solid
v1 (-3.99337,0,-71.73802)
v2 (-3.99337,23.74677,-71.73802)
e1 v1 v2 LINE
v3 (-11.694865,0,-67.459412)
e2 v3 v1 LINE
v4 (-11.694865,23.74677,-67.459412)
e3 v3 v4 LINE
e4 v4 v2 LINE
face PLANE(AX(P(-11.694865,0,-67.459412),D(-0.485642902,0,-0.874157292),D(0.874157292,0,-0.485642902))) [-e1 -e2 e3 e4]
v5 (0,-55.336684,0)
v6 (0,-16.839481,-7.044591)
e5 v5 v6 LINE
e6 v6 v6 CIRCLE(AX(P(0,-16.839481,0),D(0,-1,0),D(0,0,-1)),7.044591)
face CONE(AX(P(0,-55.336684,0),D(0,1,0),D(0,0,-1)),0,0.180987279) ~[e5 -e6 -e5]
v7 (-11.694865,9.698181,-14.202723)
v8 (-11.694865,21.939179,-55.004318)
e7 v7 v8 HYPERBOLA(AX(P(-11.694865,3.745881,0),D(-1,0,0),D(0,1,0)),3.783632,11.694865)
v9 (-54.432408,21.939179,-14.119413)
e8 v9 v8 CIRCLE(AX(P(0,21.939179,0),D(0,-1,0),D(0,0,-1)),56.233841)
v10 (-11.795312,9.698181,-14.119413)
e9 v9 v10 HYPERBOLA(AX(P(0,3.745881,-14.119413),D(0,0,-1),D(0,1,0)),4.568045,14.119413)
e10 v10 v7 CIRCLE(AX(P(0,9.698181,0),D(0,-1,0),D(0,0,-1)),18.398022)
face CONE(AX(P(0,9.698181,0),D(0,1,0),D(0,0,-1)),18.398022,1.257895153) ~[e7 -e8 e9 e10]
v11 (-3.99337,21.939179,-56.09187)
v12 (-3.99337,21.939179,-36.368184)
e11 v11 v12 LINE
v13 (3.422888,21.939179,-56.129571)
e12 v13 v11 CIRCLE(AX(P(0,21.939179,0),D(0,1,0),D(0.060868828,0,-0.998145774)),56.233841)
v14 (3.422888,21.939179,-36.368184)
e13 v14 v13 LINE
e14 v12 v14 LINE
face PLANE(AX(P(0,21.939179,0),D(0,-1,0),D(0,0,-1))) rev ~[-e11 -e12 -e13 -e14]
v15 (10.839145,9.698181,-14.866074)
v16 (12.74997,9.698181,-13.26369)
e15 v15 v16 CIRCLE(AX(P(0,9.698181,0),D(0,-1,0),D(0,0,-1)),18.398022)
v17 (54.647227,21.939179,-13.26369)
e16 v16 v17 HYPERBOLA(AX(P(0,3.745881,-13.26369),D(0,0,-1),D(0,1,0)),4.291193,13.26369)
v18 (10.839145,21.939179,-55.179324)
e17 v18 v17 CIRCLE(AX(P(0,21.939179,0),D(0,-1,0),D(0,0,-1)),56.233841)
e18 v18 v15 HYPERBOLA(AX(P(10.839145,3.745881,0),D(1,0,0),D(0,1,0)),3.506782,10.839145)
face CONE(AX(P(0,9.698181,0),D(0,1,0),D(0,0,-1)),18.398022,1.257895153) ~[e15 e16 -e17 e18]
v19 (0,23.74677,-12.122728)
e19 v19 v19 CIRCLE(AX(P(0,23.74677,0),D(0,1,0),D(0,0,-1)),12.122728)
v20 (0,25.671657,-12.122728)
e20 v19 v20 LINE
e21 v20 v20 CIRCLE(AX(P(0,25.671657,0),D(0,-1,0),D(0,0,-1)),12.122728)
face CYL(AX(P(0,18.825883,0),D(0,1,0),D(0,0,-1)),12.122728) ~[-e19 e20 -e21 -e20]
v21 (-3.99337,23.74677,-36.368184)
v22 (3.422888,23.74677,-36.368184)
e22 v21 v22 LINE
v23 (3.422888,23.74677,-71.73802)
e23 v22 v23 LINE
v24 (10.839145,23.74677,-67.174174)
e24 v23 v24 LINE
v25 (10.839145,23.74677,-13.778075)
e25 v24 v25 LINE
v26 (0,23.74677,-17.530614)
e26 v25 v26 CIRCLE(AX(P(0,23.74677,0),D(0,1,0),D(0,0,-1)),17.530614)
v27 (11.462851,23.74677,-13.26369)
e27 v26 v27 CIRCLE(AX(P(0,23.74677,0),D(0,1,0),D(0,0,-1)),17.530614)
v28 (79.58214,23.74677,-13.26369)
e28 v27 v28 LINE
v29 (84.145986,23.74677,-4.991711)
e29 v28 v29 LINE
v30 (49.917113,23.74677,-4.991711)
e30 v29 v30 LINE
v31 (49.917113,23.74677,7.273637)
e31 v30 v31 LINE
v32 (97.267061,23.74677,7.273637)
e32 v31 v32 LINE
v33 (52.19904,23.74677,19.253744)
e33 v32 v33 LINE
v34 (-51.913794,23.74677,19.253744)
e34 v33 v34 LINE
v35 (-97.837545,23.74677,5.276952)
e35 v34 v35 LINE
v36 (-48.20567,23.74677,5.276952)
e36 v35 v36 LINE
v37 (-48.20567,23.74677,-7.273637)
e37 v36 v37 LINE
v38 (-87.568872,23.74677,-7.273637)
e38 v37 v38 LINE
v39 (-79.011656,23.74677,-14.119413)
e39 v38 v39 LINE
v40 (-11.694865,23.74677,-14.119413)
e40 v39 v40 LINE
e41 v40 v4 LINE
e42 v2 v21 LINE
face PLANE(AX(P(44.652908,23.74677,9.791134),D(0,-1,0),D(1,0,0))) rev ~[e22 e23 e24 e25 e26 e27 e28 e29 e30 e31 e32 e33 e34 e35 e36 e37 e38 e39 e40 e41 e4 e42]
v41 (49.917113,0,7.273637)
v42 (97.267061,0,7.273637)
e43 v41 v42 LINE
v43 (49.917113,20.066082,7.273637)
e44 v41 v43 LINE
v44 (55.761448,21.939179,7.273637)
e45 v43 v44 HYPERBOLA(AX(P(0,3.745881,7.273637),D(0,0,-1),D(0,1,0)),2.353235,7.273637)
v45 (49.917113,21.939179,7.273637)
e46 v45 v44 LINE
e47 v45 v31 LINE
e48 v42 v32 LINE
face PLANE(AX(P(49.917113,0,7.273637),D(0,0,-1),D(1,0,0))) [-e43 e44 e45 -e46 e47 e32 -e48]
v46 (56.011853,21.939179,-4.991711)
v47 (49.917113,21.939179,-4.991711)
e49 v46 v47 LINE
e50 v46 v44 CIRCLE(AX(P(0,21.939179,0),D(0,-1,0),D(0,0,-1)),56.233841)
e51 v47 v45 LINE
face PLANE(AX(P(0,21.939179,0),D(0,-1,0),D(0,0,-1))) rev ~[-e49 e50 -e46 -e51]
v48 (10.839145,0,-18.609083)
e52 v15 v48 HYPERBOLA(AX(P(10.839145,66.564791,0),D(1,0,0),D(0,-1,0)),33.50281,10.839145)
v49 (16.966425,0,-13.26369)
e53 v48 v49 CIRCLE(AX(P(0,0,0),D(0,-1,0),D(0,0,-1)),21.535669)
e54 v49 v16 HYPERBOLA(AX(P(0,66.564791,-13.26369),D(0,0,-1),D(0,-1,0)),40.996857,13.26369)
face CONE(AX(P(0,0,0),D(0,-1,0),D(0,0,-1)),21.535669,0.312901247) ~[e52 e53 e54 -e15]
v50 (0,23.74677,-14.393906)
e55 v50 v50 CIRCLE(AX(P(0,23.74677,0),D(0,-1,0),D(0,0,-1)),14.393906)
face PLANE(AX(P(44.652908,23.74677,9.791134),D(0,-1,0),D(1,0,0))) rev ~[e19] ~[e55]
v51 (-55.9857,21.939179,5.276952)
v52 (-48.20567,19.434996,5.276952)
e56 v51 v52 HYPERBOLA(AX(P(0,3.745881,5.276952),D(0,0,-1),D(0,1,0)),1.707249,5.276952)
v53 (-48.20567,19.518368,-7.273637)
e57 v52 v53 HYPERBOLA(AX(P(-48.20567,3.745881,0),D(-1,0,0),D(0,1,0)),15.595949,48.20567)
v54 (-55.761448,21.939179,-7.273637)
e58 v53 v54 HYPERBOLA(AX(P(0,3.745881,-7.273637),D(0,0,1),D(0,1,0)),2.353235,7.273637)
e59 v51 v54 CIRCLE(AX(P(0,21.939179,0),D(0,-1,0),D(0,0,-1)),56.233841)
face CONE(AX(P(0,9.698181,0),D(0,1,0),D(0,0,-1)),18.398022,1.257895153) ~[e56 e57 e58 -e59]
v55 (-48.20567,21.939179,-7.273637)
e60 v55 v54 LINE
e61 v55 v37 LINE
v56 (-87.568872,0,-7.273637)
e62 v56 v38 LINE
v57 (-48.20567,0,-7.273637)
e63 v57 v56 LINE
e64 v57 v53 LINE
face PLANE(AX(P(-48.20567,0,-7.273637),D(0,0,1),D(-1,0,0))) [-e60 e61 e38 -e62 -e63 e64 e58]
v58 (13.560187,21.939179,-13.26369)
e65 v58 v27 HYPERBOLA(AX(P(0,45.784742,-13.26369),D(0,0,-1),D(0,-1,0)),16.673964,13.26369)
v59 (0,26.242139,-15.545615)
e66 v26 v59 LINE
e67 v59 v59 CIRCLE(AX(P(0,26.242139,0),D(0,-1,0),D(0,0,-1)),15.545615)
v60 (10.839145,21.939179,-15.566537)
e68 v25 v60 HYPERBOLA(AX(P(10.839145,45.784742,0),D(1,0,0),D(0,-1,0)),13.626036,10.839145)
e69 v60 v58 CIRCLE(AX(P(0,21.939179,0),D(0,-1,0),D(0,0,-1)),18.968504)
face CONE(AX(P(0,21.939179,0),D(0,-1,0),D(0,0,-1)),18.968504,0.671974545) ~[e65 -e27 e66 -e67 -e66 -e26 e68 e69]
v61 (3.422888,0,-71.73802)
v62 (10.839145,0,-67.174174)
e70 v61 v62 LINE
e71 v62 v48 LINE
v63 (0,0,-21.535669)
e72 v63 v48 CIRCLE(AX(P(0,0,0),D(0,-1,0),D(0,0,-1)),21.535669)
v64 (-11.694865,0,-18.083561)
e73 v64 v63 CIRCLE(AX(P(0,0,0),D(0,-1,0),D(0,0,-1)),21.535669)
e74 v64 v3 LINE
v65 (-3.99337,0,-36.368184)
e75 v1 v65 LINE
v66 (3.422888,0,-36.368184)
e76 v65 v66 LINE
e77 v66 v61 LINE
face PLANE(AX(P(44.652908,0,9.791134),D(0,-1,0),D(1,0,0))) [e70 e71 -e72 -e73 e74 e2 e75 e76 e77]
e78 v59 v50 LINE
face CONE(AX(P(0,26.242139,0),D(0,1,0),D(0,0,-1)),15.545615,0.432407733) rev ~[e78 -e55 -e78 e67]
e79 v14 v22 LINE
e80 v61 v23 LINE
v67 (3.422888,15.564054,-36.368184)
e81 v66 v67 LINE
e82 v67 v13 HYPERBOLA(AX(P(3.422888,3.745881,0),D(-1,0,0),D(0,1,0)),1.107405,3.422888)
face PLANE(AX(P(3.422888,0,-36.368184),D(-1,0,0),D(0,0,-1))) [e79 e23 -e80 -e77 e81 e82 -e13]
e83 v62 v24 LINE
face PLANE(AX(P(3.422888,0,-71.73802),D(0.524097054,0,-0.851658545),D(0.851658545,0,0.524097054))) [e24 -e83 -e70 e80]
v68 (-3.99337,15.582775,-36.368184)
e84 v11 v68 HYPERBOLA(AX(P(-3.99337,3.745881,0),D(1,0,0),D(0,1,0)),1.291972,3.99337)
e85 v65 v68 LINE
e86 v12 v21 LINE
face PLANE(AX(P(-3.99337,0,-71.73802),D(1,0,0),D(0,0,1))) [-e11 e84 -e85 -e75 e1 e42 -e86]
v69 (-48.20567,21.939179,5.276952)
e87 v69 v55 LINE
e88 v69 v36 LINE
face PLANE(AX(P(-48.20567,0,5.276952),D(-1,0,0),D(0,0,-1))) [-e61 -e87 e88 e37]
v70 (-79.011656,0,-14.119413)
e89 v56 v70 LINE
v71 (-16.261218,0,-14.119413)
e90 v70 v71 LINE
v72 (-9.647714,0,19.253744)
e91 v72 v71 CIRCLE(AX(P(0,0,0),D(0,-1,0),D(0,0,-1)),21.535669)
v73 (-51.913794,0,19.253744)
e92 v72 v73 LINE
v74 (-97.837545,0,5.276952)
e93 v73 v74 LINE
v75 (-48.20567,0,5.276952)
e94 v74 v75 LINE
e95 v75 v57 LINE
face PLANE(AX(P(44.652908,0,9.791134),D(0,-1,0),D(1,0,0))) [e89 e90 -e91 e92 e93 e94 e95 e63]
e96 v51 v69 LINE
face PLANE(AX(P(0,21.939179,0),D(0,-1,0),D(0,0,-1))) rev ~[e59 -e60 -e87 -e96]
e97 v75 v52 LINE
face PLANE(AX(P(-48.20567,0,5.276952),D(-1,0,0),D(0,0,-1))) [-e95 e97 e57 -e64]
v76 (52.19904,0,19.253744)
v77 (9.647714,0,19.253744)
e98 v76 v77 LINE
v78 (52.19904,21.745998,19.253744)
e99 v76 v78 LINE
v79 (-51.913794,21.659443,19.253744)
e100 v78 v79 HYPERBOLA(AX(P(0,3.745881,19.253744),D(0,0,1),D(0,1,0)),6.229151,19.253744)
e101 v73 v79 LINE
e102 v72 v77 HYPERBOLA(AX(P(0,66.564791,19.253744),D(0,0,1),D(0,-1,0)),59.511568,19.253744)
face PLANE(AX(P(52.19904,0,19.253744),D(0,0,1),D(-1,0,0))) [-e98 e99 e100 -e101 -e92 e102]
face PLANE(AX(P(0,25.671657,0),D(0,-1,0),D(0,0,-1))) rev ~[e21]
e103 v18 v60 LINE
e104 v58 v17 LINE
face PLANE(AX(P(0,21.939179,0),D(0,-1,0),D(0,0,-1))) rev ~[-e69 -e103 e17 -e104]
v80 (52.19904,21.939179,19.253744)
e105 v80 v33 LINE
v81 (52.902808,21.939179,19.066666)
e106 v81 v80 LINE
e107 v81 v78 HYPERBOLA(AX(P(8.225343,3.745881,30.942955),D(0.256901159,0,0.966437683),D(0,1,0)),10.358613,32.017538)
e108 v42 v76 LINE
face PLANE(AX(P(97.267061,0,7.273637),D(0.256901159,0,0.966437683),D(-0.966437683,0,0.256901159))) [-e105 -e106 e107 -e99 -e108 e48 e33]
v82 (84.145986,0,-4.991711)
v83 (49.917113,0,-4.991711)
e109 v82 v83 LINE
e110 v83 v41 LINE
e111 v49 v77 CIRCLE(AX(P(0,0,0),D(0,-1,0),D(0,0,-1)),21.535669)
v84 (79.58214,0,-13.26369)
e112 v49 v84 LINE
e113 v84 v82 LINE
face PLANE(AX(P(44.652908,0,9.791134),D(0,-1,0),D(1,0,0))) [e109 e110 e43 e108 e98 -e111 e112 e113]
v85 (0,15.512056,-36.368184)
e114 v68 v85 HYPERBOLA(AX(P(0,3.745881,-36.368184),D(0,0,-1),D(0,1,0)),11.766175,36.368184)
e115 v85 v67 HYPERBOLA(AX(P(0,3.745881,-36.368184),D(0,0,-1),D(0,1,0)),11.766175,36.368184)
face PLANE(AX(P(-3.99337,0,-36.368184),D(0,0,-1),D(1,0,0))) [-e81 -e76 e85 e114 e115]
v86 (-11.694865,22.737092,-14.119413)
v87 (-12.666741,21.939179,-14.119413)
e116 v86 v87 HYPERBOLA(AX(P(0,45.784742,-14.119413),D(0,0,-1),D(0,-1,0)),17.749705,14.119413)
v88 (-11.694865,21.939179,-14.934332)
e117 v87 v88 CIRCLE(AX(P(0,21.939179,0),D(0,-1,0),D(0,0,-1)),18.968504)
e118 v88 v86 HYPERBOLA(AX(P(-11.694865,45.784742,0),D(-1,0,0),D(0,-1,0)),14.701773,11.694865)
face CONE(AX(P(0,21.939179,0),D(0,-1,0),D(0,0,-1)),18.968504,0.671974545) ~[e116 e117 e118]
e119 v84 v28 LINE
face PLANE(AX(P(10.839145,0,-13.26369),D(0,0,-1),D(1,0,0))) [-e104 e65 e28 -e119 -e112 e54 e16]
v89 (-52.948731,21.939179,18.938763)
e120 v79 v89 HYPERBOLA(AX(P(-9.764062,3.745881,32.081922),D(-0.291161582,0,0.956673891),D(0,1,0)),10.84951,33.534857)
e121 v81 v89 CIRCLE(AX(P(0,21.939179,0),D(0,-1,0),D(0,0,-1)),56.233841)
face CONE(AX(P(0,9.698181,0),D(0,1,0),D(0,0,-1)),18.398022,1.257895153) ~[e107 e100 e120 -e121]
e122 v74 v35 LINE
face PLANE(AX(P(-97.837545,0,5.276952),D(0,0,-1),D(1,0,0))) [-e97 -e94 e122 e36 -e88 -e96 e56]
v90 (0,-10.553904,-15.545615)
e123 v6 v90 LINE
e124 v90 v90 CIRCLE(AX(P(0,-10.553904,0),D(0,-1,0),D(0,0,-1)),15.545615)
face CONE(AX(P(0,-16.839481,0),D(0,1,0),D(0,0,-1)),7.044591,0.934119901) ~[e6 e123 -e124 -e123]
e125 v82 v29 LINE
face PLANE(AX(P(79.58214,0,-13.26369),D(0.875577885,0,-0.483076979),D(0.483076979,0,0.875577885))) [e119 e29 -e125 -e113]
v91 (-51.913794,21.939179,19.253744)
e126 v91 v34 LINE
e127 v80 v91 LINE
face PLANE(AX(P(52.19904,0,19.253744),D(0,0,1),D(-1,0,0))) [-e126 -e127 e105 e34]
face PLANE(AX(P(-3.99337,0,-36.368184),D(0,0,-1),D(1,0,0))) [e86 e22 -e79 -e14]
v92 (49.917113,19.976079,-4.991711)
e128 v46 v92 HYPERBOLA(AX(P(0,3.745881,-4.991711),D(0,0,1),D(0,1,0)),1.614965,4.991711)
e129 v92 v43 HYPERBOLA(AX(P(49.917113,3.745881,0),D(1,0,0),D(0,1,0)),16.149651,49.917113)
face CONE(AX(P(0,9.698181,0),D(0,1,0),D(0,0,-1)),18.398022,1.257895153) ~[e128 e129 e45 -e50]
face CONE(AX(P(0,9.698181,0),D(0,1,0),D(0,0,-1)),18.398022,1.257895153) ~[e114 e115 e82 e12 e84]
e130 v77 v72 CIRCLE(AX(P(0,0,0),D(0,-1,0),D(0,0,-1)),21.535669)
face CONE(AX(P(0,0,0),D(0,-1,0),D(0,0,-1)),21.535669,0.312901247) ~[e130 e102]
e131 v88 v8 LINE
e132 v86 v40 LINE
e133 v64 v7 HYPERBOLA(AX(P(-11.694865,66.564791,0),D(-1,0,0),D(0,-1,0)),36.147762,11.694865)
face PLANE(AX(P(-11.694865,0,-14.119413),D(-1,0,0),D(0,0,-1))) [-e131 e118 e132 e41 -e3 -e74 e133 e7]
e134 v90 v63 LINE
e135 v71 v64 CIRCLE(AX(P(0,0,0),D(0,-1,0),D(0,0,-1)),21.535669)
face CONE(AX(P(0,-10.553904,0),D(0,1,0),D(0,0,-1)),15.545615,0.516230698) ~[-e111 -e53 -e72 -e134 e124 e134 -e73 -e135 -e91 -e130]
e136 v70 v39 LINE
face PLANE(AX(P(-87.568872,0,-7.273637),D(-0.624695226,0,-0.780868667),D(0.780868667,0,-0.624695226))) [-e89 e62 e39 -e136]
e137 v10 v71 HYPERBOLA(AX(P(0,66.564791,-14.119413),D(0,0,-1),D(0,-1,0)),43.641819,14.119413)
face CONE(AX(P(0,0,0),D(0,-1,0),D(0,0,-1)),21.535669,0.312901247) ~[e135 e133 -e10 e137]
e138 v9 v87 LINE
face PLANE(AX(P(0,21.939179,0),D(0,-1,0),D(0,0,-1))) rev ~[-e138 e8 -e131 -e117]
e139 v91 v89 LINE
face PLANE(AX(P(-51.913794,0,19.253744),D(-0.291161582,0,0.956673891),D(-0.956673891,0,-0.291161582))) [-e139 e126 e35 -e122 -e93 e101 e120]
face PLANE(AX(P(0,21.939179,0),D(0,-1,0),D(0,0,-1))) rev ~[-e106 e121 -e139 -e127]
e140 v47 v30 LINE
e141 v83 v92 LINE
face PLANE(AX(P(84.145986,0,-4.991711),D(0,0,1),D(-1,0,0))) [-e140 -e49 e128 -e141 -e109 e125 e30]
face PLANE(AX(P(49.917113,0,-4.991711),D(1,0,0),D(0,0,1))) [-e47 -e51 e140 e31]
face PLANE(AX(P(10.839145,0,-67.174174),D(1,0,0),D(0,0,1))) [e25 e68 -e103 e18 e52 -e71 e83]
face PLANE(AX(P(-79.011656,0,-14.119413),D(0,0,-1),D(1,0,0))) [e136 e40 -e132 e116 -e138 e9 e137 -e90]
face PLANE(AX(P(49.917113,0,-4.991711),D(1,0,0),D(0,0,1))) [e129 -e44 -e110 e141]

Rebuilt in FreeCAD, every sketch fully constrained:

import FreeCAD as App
import Part
import Sketcher
Q = App.Units.Quantity


def add_polygon(sketch, points):
    """Adds a closed chain of lines whose ends are joined by coincident constraints."""
    first, n = sketch.GeometryCount, len(points)
    for a, b in zip(points, points[1:] + points[:1]):
        sketch.addGeometry(Part.LineSegment(App.Vector(*a, 0), App.Vector(*b, 0)), False)
    for i in range(n):
        sketch.addConstraint(Sketcher.Constraint("Coincident", first + i, 2, first + (i + 1) % n, 1))

doc = App.newDocument("Part")
body = doc.addObject("PartDesign::Body", "Body")

sketch1 = doc.addObject("Sketcher::SketchObject", "Sketch")
body.addObject(sketch1)
sketch1.AttachmentSupport = (doc.YZ_Plane, [""])
sketch1.MapMode = "FlatFace"
add_polygon(sketch1, [(-55, 0), (-17, -7), (-11, -16), (0, -22), (10, -18), (22, -56), (22, -19), (26, -16), (19, -12), (26, -12), (26, 0)])
sketch1.addConstraint(Sketcher.Constraint("Vertical", 5))
sketch1.addConstraint(Sketcher.Constraint("Horizontal", 8))
sketch1.addConstraint(Sketcher.Constraint("Vertical", 9))
sketch1.addConstraint(Sketcher.Constraint("Horizontal", 10))
sketch1.addConstraint(Sketcher.Constraint("PointOnObject", 2, 2, -2))
sketch1.addConstraint(Sketcher.Constraint("PointOnObject", 9, 2, -1))
sketch1.addConstraint(Sketcher.Constraint("Perpendicular", 3, 4))
sketch1.addConstraint(Sketcher.Constraint("Horizontal", 1, 2, 6, 2))
sketch1.addConstraint(Sketcher.Constraint("DistanceX", 10, 2, 10, 1, 81.008341))
sketch1.addConstraint(Sketcher.Constraint("Distance", 0, 39.13644))
sketch1.addConstraint(Sketcher.Constraint("Distance", 1, 10.572412))
sketch1.addConstraint(Sketcher.Constraint("Distance", 4, 39.76671))
sketch1.addConstraint(Sketcher.Constraint("Distance", 6, 5.49833))
sketch1.addConstraint(Sketcher.Constraint("Distance", 7, 8.168048))
sketch1.addConstraint(Sketcher.Constraint("DistanceX", 8, 1, 8, 2, 6.845774))
sketch1.addConstraint(Sketcher.Constraint("DistanceY", 5, 1, 5, 2, 37.265337))
sketch1.addConstraint(Sketcher.Constraint("DistanceY", 9, 1, 9, 2, 12.122728))
sketch1.addConstraint(Sketcher.Constraint("DistanceX", 0, 2, -1, 1, 16.839481))
sketch1.addConstraint(Sketcher.Constraint("DistanceY", 0, 2, -1, 1, 7.044591))
sketch1.addConstraint(Sketcher.Constraint("DistanceY", 2, 2, -1, 1, 21.535669))
sketch1.addConstraint(Sketcher.Constraint("DistanceX", -1, 1, 3, 2, 9.698181))
sketch1.addConstraint(Sketcher.Constraint("DistanceX", -1, 1, 4, 2, 21.939179))
revolution = doc.addObject("PartDesign::Revolution", "Revolution")
body.addObject(revolution)
revolution.Profile = sketch1
revolution.ReferenceAxis = (sketch1, ["H_Axis"])
revolution.Angle = 360

sketch2 = doc.addObject("Sketcher::SketchObject", "Sketch001")
body.addObject(sketch2)
sketch2.AttachmentSupport = (doc.XZ_Plane, [""])
sketch2.MapMode = "FlatFace"
add_polygon(sketch2, [(52, 19), (-52, 19), (-98, 5), (-48, 5), (-48, -7), (-88, -7), (-79, -14), (-12, -14), (-12, -67), (-4, -72), (-4, -36), (3, -36), (3, -72), (11, -67), (11, -13), (80, -13), (84, -5), (50, -5), (50, 7), (97, 7)])
sketch2.addConstraint(Sketcher.Constraint("Horizontal", 0))
sketch2.addConstraint(Sketcher.Constraint("Horizontal", 2))
sketch2.addConstraint(Sketcher.Constraint("Vertical", 3))
sketch2.addConstraint(Sketcher.Constraint("Horizontal", 4))
sketch2.addConstraint(Sketcher.Constraint("Horizontal", 6))
sketch2.addConstraint(Sketcher.Constraint("Vertical", 7))
sketch2.addConstraint(Sketcher.Constraint("Vertical", 9))
sketch2.addConstraint(Sketcher.Constraint("Horizontal", 10))
sketch2.addConstraint(Sketcher.Constraint("Vertical", 11))
sketch2.addConstraint(Sketcher.Constraint("Vertical", 13))
sketch2.addConstraint(Sketcher.Constraint("Horizontal", 14))
sketch2.addConstraint(Sketcher.Constraint("Horizontal", 16))
sketch2.addConstraint(Sketcher.Constraint("Vertical", 17))
sketch2.addConstraint(Sketcher.Constraint("Horizontal", 18))
sketch2.addConstraint(Sketcher.Constraint("Horizontal", 8, 2, 11, 2))
sketch2.addConstraint(Sketcher.Constraint("DistanceY", 7, 2, 7, 1, Q("2.1 in")))
sketch2.addConstraint(Sketcher.Constraint("DistanceX", 6, 1, 6, 2, 67.316791))
sketch2.addConstraint(Sketcher.Constraint("DistanceY", 3, 2, 3, 1, 12.550589))
sketch2.addConstraint(Sketcher.Constraint("DistanceX", 3, 2, 8, 2, 44.2123))
sketch2.addConstraint(Sketcher.Constraint("DistanceY", 6, 2, 16, 2, 9.127702))
sketch2.addConstraint(Sketcher.Constraint("DistanceX", 19, 2, 14, 2, 27.3831))
sketch2.addConstraint(Sketcher.Constraint("Distance", 1, 48.003558))
sketch2.addConstraint(Sketcher.Constraint("Distance", 15, 9.447451))
sketch2.addConstraint(Sketcher.Constraint("DistanceX", 0, 2, 0, 1, 104.112834))
sketch2.addConstraint(Sketcher.Constraint("DistanceX", 2, 1, 2, 2, 49.631875))
sketch2.addConstraint(Sketcher.Constraint("DistanceX", 4, 2, 4, 1, 39.363202))
sketch2.addConstraint(Sketcher.Constraint("DistanceX", 10, 1, 10, 2, 7.416258))
sketch2.addConstraint(Sketcher.Constraint("DistanceX", 14, 1, 14, 2, 68.742995))
sketch2.addConstraint(Sketcher.Constraint("DistanceX", 16, 2, 16, 1, 34.228873))
sketch2.addConstraint(Sketcher.Constraint("DistanceX", 18, 1, 18, 2, 47.349948))
sketch2.addConstraint(Sketcher.Constraint("DistanceY", 9, 1, 9, 2, 35.369836))
sketch2.addConstraint(Sketcher.Constraint("DistanceY", 13, 1, 13, 2, 53.910484))
sketch2.addConstraint(Sketcher.Constraint("DistanceY", 17, 1, 17, 2, 12.265348))
sketch2.addConstraint(Sketcher.Constraint("DistanceY", -1, 1, 1, 2, 5.276952))
sketch2.addConstraint(Sketcher.Constraint("DistanceX", 2, 2, -1, 1, 48.20567))
sketch2.addConstraint(Sketcher.Constraint("DistanceY", 7, 2, -1, 1, 67.459412))
sketch2.addConstraint(Sketcher.Constraint("DistanceY", 8, 2, -1, 1, 71.73802))
sketch2.addConstraint(Sketcher.Constraint("DistanceY", 13, 2, -1, 1, 13.26369))
sketch2.addConstraint(Sketcher.Constraint("DistanceX", -1, 1, 14, 2, 79.58214))
sketch2.addConstraint(Sketcher.Constraint("DistanceX", 1, 2, 5, 2, 18.825889))
pad1 = doc.addObject("PartDesign::Pad", "Pad")
body.addObject(pad1)
pad1.Profile = sketch2
pad1.Length = 23.74677
pad1.Reversed = True

doc.recompute()
